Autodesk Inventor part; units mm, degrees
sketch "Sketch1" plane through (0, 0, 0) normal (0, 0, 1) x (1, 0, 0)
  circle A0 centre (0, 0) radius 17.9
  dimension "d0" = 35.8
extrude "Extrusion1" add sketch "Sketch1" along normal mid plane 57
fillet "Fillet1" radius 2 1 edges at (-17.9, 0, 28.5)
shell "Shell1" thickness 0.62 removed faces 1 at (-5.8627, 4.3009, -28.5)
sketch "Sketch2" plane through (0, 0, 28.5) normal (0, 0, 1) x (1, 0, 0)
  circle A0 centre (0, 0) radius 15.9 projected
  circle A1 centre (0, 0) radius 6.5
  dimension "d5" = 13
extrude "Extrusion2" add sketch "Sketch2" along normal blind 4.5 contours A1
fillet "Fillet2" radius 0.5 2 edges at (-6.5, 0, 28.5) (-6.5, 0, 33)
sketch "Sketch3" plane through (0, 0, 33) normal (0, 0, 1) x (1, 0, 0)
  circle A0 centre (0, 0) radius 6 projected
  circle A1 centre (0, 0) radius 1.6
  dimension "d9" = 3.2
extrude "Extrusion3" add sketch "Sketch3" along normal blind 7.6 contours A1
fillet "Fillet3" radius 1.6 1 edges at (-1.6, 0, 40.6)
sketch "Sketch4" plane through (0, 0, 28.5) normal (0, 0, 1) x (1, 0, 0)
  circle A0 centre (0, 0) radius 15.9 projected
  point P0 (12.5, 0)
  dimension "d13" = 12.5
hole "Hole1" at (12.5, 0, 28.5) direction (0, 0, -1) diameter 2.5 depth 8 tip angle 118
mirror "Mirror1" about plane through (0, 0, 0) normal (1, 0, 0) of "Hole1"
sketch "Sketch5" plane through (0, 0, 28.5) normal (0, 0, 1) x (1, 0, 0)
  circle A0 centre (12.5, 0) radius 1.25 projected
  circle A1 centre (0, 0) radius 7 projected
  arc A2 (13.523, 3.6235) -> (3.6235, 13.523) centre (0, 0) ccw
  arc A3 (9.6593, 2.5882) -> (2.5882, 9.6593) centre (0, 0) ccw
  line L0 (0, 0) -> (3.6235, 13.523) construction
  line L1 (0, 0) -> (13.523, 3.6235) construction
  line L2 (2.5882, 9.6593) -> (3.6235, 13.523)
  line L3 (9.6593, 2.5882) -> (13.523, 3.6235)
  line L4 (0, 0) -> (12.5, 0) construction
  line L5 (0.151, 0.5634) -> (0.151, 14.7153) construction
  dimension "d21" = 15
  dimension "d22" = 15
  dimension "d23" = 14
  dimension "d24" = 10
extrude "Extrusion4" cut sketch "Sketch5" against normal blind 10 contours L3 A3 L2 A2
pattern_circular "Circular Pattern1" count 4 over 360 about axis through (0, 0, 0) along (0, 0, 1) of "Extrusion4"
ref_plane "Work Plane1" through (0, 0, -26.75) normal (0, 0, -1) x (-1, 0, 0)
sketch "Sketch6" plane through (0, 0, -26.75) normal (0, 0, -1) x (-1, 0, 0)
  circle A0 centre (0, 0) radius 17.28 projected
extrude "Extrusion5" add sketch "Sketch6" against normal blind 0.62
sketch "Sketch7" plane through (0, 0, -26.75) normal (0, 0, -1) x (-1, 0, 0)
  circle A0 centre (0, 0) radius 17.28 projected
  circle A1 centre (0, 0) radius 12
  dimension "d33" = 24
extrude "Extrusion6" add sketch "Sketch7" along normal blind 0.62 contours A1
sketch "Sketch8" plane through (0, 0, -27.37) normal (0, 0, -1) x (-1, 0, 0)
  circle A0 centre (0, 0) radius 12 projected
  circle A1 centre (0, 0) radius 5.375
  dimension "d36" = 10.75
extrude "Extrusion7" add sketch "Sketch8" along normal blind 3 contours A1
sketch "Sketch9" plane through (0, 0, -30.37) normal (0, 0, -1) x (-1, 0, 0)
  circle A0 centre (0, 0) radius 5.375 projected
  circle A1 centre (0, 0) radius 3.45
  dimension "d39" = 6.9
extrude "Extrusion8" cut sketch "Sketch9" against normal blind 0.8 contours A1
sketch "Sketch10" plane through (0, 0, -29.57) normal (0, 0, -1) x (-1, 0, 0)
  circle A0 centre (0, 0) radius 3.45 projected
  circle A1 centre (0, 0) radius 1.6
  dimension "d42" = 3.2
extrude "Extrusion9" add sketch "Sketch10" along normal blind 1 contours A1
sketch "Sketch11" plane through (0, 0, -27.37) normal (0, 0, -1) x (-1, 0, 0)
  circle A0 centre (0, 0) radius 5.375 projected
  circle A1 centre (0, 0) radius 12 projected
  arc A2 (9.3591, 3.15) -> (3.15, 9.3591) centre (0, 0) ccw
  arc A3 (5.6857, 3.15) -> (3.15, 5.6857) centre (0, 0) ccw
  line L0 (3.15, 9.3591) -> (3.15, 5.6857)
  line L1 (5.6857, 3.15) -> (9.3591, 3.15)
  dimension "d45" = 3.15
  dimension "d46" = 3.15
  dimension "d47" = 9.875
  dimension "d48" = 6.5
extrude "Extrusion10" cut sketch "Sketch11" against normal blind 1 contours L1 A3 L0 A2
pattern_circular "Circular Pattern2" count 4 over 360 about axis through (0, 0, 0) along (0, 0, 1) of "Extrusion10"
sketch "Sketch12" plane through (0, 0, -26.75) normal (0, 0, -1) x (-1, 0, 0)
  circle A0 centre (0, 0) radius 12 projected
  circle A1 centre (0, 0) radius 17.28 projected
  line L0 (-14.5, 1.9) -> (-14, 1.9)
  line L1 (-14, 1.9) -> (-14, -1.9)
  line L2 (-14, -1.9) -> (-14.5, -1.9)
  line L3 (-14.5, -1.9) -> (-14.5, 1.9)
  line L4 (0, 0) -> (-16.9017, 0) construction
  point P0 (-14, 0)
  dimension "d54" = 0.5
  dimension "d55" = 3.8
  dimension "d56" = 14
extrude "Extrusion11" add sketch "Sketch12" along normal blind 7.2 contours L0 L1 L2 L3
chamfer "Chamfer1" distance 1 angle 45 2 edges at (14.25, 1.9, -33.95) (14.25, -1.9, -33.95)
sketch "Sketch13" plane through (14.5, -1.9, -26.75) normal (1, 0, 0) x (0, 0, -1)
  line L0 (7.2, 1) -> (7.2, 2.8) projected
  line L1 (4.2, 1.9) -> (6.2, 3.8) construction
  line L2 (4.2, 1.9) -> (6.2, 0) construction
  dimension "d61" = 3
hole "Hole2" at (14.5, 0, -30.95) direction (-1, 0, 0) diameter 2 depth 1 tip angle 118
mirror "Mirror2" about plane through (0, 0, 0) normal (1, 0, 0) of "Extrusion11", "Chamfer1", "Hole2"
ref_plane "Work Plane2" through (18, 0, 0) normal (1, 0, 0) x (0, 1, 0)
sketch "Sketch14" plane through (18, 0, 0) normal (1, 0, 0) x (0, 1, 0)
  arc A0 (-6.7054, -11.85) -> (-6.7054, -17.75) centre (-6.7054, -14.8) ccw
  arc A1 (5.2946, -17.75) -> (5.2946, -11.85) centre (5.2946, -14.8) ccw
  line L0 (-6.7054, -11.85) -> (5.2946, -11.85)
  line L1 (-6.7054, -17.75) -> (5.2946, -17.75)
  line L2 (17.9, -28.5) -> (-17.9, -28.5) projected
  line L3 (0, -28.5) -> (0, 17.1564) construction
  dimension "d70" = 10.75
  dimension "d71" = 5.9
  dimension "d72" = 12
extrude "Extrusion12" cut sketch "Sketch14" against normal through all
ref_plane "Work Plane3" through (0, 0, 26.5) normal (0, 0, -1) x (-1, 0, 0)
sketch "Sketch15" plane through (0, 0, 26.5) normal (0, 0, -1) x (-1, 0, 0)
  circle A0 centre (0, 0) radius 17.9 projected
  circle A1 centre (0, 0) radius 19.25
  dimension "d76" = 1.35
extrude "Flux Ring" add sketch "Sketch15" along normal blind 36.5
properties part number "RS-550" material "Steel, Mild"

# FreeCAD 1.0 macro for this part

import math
import FreeCAD as App
import Part
import Sketcher
Q = App.Units.Quantity


def edges_at(feature, points):
    """Names of the edges that pass closest to the given points."""
    edges = feature.Shape.Edges
    near = lambda p: min(range(len(edges)), key=lambda i: edges[i].distToShape(Part.Vertex(*p))[0])
    return sorted({f"Edge{near(p) + 1}" for p in points})


def faces_at(feature, points):
    """Names of the faces that lie closest to the given points."""
    faces = feature.Shape.Faces
    near = lambda p: min(range(len(faces)), key=lambda i: faces[i].distToShape(Part.Vertex(*p))[0])
    return sorted({f"Face{near(p) + 1}" for p in points})

doc = App.newDocument("Part")
body = doc.addObject("PartDesign::Body", "Body")

# Sketch on XY plane
sketch1 = body.newObject("Sketcher::SketchObject", "Sketch")
sketch1.AttachmentSupport = (doc.getObject("XY_Plane"), [""])
sketch1.MapMode = "FlatFace"
sketch1.addGeometry(Part.Circle(App.Vector(0, 0, 0), App.Vector(0, 0, 1), 18), False)
sketch1.addConstraint([
    Sketcher.Constraint("Coincident", 0, 3, -1, 1),
    Sketcher.Constraint("Diameter", 0, 35.8),
])
pad1 = body.newObject("PartDesign::Pad", "Pad")
pad1.Profile = sketch1
pad1.Length = 57
pad1.Midplane = True
doc.recompute()

fillet = body.newObject("PartDesign::Fillet", "Fillet")
fillet.Base = (pad1, edges_at(pad1, [(-17.9, 0, 28.5)]))
fillet.Radius = 2
doc.recompute()

thickness = body.newObject("PartDesign::Thickness", "Thickness")
thickness.Base = (fillet, faces_at(fillet, [(-5.863, 4.301, -28.5)]))
thickness.Value = 0.62
thickness.Reversed = True
thickness.Join = "Intersection"

# Sketch on XY plane
sketch2 = body.newObject("Sketcher::SketchObject", "Sketch001")
sketch2.AttachmentSupport = (doc.getObject("XY_Plane"), [""])
sketch2.MapMode = "FlatFace"
sketch2.AttachmentOffset = App.Placement(App.Vector(0, 0, 28.5), App.Rotation())
sketch2.addGeometry(Part.Circle(App.Vector(0, 0, 0), App.Vector(0, 0, 1), 6), False)
sketch2.addConstraint([
    Sketcher.Constraint("Coincident", 0, 3, -1, 1),
    Sketcher.Constraint("Diameter", 0, 13.0),
])
pad2 = body.newObject("PartDesign::Pad", "Pad001")
pad2.Profile = sketch2
pad2.Length = 4.5
doc.recompute()

fillet2 = body.newObject("PartDesign::Fillet", "Fillet001")
fillet2.Base = (pad2, edges_at(pad2, [(-6.5, 0, 28.5), (-6.5, 0, 33)]))
fillet2.Radius = 0.5

# Sketch on XY plane
sketch3 = body.newObject("Sketcher::SketchObject", "Sketch002")
sketch3.AttachmentSupport = (doc.getObject("XY_Plane"), [""])
sketch3.MapMode = "FlatFace"
sketch3.AttachmentOffset = App.Placement(App.Vector(0, 0, 33), App.Rotation())
sketch3.addGeometry(Part.Circle(App.Vector(0, 0, 0), App.Vector(0, 0, 1), 1.6), False)
sketch3.addConstraint([
    Sketcher.Constraint("Coincident", 0, 3, -1, 1),
    Sketcher.Constraint("Diameter", 0, 3.2),
])
pad3 = body.newObject("PartDesign::Pad", "Pad002")
pad3.Profile = sketch3
pad3.Length = 7.6
doc.recompute()

fillet3 = body.newObject("PartDesign::Fillet", "Fillet002")
fillet3.Base = (pad3, edges_at(pad3, [(-1.6, 0, 40.6)]))
fillet3.Radius = 1.6

# Sketch on XY plane
sketch4 = body.newObject("Sketcher::SketchObject", "Sketch003")
sketch4.AttachmentSupport = (doc.getObject("XY_Plane"), [""])
sketch4.MapMode = "FlatFace"
sketch4.AttachmentOffset = App.Placement(App.Vector(0, 0, 28.5), App.Rotation())
sketch4.addGeometry(Part.Circle(App.Vector(12.5, 0, 0), App.Vector(0, 0, 1), 1.2), False)
sketch4.addConstraint([
    Sketcher.Constraint("PointOnObject", 0, 3, -1),
    Sketcher.Constraint("Diameter", 0, 2.5),
    Sketcher.Constraint("DistanceX", -1, 1, 0, 3, 12.5),
])
doc.recompute()
hole = body.newObject("PartDesign::Hole", "Hole")
hole.Profile = sketch4
hole.ThreadType = "None"
hole.Diameter = 2.5
hole.DepthType = "Dimension"
hole.Depth = 8
hole.DrillPoint = "Angled"
hole.DrillPointAngle = 118
doc.recompute()

mirrored = body.newObject("PartDesign::Mirrored", "Mirrored")
mirrored.Originals = [hole]
mirrored.MirrorPlane = (doc.getObject("YZ_Plane"), [""])
body.Tip = mirrored

# Sketch on XY plane
sketch5 = body.newObject("Sketcher::SketchObject", "Sketch004")
sketch5.AttachmentSupport = (doc.getObject("XY_Plane"), [""])
sketch5.MapMode = "FlatFace"
sketch5.AttachmentOffset = App.Placement(App.Vector(0, 0, 28.5), App.Rotation())
sketch5.addGeometry([
    Part.LineSegment(App.Vector(9.7, 2.6, 0), App.Vector(13.5, 3.6, 0)),
    Part.ArcOfCircle(Part.Circle(App.Vector(0, 0, 0), App.Vector(0, 0, 1), 14), math.radians(15), math.radians(75)),
    Part.LineSegment(App.Vector(3.6, 13.5, 0), App.Vector(2.6, 9.7, 0)),
    Part.ArcOfCircle(Part.Circle(App.Vector(0, 0, 0), App.Vector(0, 0, 1), 10), math.radians(15), math.radians(75)),
], False)
sketch5.addConstraint([
    Sketcher.Constraint("Coincident", 0, 2, 1, 1),
    Sketcher.Constraint("Coincident", 1, 2, 2, 1),
    Sketcher.Constraint("Coincident", 2, 2, 3, 2),
    Sketcher.Constraint("Coincident", 3, 1, 0, 1),
    Sketcher.Constraint("Coincident", 1, 3, -1, 1),
    Sketcher.Constraint("Coincident", 3, 3, -1, 1),
    Sketcher.Constraint("Radius", 1, 14.0),
    Sketcher.Constraint("Radius", 3, 10.0),
    Sketcher.Constraint("Angle", 0, Q("15.0003 deg")),
    Sketcher.Constraint("Angle", 2, Q("-105.0003 deg")),
    Sketcher.Constraint("DistanceX", -1, 1, 0, 2, 13.523),
    Sketcher.Constraint("DistanceY", -1, 1, 1, 2, 13.523),
])
pocket1 = body.newObject("PartDesign::Pocket", "Pocket")
pocket1.Profile = sketch5
pocket1.Length = 10
doc.recompute()

polarpattern = body.newObject("PartDesign::PolarPattern", "PolarPattern")
polarpattern.Originals = [pocket1]
polarpattern.Axis = (doc.getObject("Z_Axis"), [""])
polarpattern.Angle = 360
polarpattern.Occurrences = 4
body.Tip = polarpattern

# Sketch on XY plane
sketch6 = body.newObject("Sketcher::SketchObject", "Sketch005")
sketch6.AttachmentSupport = (doc.getObject("XY_Plane"), [""])
sketch6.MapMode = "FlatFace"
sketch6.AttachmentOffset = App.Placement(App.Vector(0, 0, -26.75), App.Rotation())
sketch6.addGeometry(Part.Circle(App.Vector(0, 0, 0), App.Vector(0, 0, 1), 17), False)
sketch6.addConstraint([
    Sketcher.Constraint("Coincident", 0, 3, -1, 1),
    Sketcher.Constraint("Diameter", 0, 34.56),
])
pad4 = body.newObject("PartDesign::Pad", "Pad003")
pad4.Profile = sketch6
pad4.Length = 0.62

# Sketch on XY plane
sketch7 = body.newObject("Sketcher::SketchObject", "Sketch006")
sketch7.AttachmentSupport = (doc.getObject("XY_Plane"), [""])
sketch7.MapMode = "FlatFace"
sketch7.AttachmentOffset = App.Placement(App.Vector(0, 0, -26.75), App.Rotation())
sketch7.addGeometry(Part.Circle(App.Vector(0, 0, 0), App.Vector(0, 0, 1), 12), False)
sketch7.addConstraint([
    Sketcher.Constraint("Coincident", 0, 3, -1, 1),
    Sketcher.Constraint("Diameter", 0, 24.0),
])
pad5 = body.newObject("PartDesign::Pad", "Pad004")
pad5.Profile = sketch7
pad5.Length = 0.62
pad5.Reversed = True

# Sketch on XY plane
sketch8 = body.newObject("Sketcher::SketchObject", "Sketch007")
sketch8.AttachmentSupport = (doc.getObject("XY_Plane"), [""])
sketch8.MapMode = "FlatFace"
sketch8.AttachmentOffset = App.Placement(App.Vector(0, 0, -27.37), App.Rotation())
sketch8.addGeometry(Part.Circle(App.Vector(0, 0, 0), App.Vector(0, 0, 1), 5), False)
sketch8.addConstraint([
    Sketcher.Constraint("Coincident", 0, 3, -1, 1),
    Sketcher.Constraint("Diameter", 0, 10.75),
])
pad6 = body.newObject("PartDesign::Pad", "Pad005")
pad6.Profile = sketch8
pad6.Length = 3
pad6.Reversed = True

# Sketch on XY plane
sketch9 = body.newObject("Sketcher::SketchObject", "Sketch008")
sketch9.AttachmentSupport = (doc.getObject("XY_Plane"), [""])
sketch9.MapMode = "FlatFace"
sketch9.AttachmentOffset = App.Placement(App.Vector(0, 0, -30.37), App.Rotation())
sketch9.addGeometry(Part.Circle(App.Vector(0, 0, 0), App.Vector(0, 0, 1), 3.5), False)
sketch9.addConstraint([
    Sketcher.Constraint("Coincident", 0, 3, -1, 1),
    Sketcher.Constraint("Diameter", 0, 6.9),
])
pocket2 = body.newObject("PartDesign::Pocket", "Pocket001")
pocket2.Profile = sketch9
pocket2.Length = 0.8
pocket2.Reversed = True

# Sketch on XY plane
sketch10 = body.newObject("Sketcher::SketchObject", "Sketch009")
sketch10.AttachmentSupport = (doc.getObject("XY_Plane"), [""])
sketch10.MapMode = "FlatFace"
sketch10.AttachmentOffset = App.Placement(App.Vector(0, 0, -29.57), App.Rotation())
sketch10.addGeometry(Part.Circle(App.Vector(0, 0, 0), App.Vector(0, 0, 1), 1.6), False)
sketch10.addConstraint([
    Sketcher.Constraint("Coincident", 0, 3, -1, 1),
    Sketcher.Constraint("Diameter", 0, 3.2),
])
pad7 = body.newObject("PartDesign::Pad", "Pad006")
pad7.Profile = sketch10
pad7.Length = 1
pad7.Reversed = True

# Sketch on XY plane
sketch11 = body.newObject("Sketcher::SketchObject", "Sketch010")
sketch11.AttachmentSupport = (doc.getObject("XY_Plane"), [""])
sketch11.MapMode = "FlatFace"
sketch11.AttachmentOffset = App.Placement(App.Vector(0, 0, -27.37), App.Rotation())
sketch11.addGeometry([
    Part.LineSegment(App.Vector(-5.7, 3.1, 0), App.Vector(-9.4, 3.1, 0)),
    Part.ArcOfCircle(Part.Circle(App.Vector(0, 0, 0), App.Vector(0, 0, 1), 9.9), math.radians(109), math.radians(161)),
    Part.LineSegment(App.Vector(-3.1, 9.4, 0), App.Vector(-3.1, 5.7, 0)),
    Part.ArcOfCircle(Part.Circle(App.Vector(0, 0, 0), App.Vector(0, 0, 1), 6.5), math.radians(119), math.radians(151)),
], False)
sketch11.addConstraint([
    Sketcher.Constraint("Coincident", 0, 2, 1, 2),
    Sketcher.Constraint("Coincident", 1, 1, 2, 1),
    Sketcher.Constraint("Coincident", 2, 2, 3, 1),
    Sketcher.Constraint("Coincident", 3, 2, 0, 1),
    Sketcher.Constraint("Horizontal", 0),
    Sketcher.Constraint("Vertical", 2),
    Sketcher.Constraint("Coincident", 1, 3, -1, 1),
    Sketcher.Constraint("Coincident", 3, 3, -1, 1),
    Sketcher.Constraint("Equal", 0, 2),
    Sketcher.Constraint("Radius", 3, 6.5),
    Sketcher.Constraint("Radius", 1, 9.875),
    Sketcher.Constraint("DistanceY", -1, 1, 0, 2, 3.15),
])
pocket3 = body.newObject("PartDesign::Pocket", "Pocket002")
pocket3.Profile = sketch11
pocket3.Length = 1
pocket3.Reversed = True
doc.recompute()

polarpattern2 = body.newObject("PartDesign::PolarPattern", "PolarPattern001")
polarpattern2.Originals = [pocket3]
polarpattern2.Axis = (doc.getObject("Z_Axis"), [""])
polarpattern2.Angle = 360
polarpattern2.Occurrences = 4
body.Tip = polarpattern2

# Sketch on XY plane
sketch12 = body.newObject("Sketcher::SketchObject", "Sketch011")
sketch12.AttachmentSupport = (doc.getObject("XY_Plane"), [""])
sketch12.MapMode = "FlatFace"
sketch12.AttachmentOffset = App.Placement(App.Vector(0, 0, -26.75), App.Rotation())
sketch12.addGeometry([
    Part.LineSegment(App.Vector(14, 1.9, 0), App.Vector(14.5, 1.9, 0)),
    Part.LineSegment(App.Vector(14.5, 1.9, 0), App.Vector(14.5, -1.9, 0)),
    Part.LineSegment(App.Vector(14.5, -1.9, 0), App.Vector(14, -1.9, 0)),
    Part.LineSegment(App.Vector(14, -1.9, 0), App.Vector(14, 1.9, 0)),
], False)
sketch12.addConstraint([
    Sketcher.Constraint("Coincident", 0, 2, 1, 1),
    Sketcher.Constraint("Coincident", 1, 2, 2, 1),
    Sketcher.Constraint("Coincident", 2, 2, 3, 1),
    Sketcher.Constraint("Coincident", 3, 2, 0, 1),
    Sketcher.Constraint("Horizontal", 0),
    Sketcher.Constraint("Vertical", 1),
    Sketcher.Constraint("Horizontal", 2),
    Sketcher.Constraint("Vertical", 3),
    Sketcher.Constraint("DistanceX", 0, 1, 0, 2, 0.5),
    Sketcher.Constraint("DistanceY", 1, 2, 1, 1, 3.8),
    Sketcher.Constraint("DistanceX", -1, 1, 2, 2, 14.0),
    Sketcher.Constraint("DistanceY", -1, 1, 0, 2, 1.9),
])
pad8 = body.newObject("PartDesign::Pad", "Pad007")
pad8.Profile = sketch12
pad8.Length = 7.2
pad8.Reversed = True
doc.recompute()

chamfer = body.newObject("PartDesign::Chamfer", "Chamfer")
chamfer.Base = (pad8, edges_at(pad8, [(14.25, 1.9, -33.95), (14.25, -1.9, -33.95)]))
chamfer.Size = 1

# Sketch on YZ plane
sketch13 = body.newObject("Sketcher::SketchObject", "Sketch012")
sketch13.AttachmentSupport = (doc.getObject("YZ_Plane"), [""])
sketch13.MapMode = "FlatFace"
sketch13.AttachmentOffset = App.Placement(App.Vector(0, 0, 14.5), App.Rotation())
sketch13.addGeometry(Part.Circle(App.Vector(0, -30.9, 0), App.Vector(0, 0, 1), 1), False)
sketch13.addConstraint([
    Sketcher.Constraint("PointOnObject", 0, 3, -2),
    Sketcher.Constraint("Diameter", 0, 2.0),
    Sketcher.Constraint("DistanceY", 0, 3, -1, 1, 30.95),
])
doc.recompute()
hole2 = body.newObject("PartDesign::Hole", "Hole001")
hole2.Profile = sketch13
hole2.ThreadType = "None"
hole2.Diameter = 2
hole2.DepthType = "Dimension"
hole2.Depth = 1
hole2.DrillPoint = "Angled"
hole2.DrillPointAngle = 118
doc.recompute()

mirrored2 = body.newObject("PartDesign::Mirrored", "Mirrored001")
mirrored2.Originals = [pad8, chamfer, hole2]
mirrored2.MirrorPlane = (doc.getObject("YZ_Plane"), [""])
body.Tip = mirrored2

# Sketch on YZ plane
sketch14 = body.newObject("Sketcher::SketchObject", "Sketch013")
sketch14.AttachmentSupport = (doc.getObject("YZ_Plane"), [""])
sketch14.MapMode = "FlatFace"
sketch14.AttachmentOffset = App.Placement(App.Vector(0, 0, 18), App.Rotation())
sketch14.addGeometry([
    Part.LineSegment(App.Vector(5.3, -11.8, 0), App.Vector(-6.7, -11.8, 0)),
    Part.ArcOfCircle(Part.Circle(App.Vector(-6.7, -14.8, 0), App.Vector(0, 0, 1), 3), math.radians(90), math.radians(270)),
    Part.LineSegment(App.Vector(-6.7, -17.8, 0), App.Vector(5.3, -17.8, 0)),
    Part.ArcOfCircle(Part.Circle(App.Vector(5.3, -14.8, 0), App.Vector(0, 0, 1), 2.9), math.radians(-90), math.radians(90)),
], False)
sketch14.addConstraint([
    Sketcher.Constraint("Tangent", 0, 2, 1, 1),
    Sketcher.Constraint("Tangent", 1, 2, 2, 1),
    Sketcher.Constraint("Tangent", 2, 2, 3, 1),
    Sketcher.Constraint("Tangent", 3, 2, 0, 1),
    Sketcher.Constraint("Horizontal", 0),
    Sketcher.Constraint("Horizontal", 2),
    Sketcher.Constraint("DistanceX", 0, 2, 0, 1, 12.0),
    Sketcher.Constraint("Radius", 1, 2.95),
    Sketcher.Constraint("DistanceY", 1, 3, -1, 1, 14.8),
    Sketcher.Constraint("DistanceX", 1, 3, -1, 1, 6.7054),
])
pocket4 = body.newObject("PartDesign::Pocket", "Pocket003")
pocket4.Profile = sketch14
pocket4.Type = "ThroughAll"

# Sketch on XY plane
sketch15 = body.newObject("Sketcher::SketchObject", "Sketch014")
sketch15.AttachmentSupport = (doc.getObject("XY_Plane"), [""])
sketch15.MapMode = "FlatFace"
sketch15.AttachmentOffset = App.Placement(App.Vector(0, 0, 26.5), App.Rotation())
sketch15.addGeometry([
    Part.Circle(App.Vector(0, 0, 0), App.Vector(0, 0, 1), 19),
    Part.Circle(App.Vector(0, 0, 0), App.Vector(0, 0, 1), 18),
], False)
sketch15.addConstraint([
    Sketcher.Constraint("Coincident", 0, 3, -1, 1),
    Sketcher.Constraint("Coincident", 1, 3, -1, 1),
    Sketcher.Constraint("Diameter", 0, 38.5),
    Sketcher.Constraint("Diameter", 1, 35.8),
])
pad9 = body.newObject("PartDesign::Pad", "Pad008")
pad9.Profile = sketch15
pad9.Length = 36.5
pad9.Reversed = True

doc.recompute()
